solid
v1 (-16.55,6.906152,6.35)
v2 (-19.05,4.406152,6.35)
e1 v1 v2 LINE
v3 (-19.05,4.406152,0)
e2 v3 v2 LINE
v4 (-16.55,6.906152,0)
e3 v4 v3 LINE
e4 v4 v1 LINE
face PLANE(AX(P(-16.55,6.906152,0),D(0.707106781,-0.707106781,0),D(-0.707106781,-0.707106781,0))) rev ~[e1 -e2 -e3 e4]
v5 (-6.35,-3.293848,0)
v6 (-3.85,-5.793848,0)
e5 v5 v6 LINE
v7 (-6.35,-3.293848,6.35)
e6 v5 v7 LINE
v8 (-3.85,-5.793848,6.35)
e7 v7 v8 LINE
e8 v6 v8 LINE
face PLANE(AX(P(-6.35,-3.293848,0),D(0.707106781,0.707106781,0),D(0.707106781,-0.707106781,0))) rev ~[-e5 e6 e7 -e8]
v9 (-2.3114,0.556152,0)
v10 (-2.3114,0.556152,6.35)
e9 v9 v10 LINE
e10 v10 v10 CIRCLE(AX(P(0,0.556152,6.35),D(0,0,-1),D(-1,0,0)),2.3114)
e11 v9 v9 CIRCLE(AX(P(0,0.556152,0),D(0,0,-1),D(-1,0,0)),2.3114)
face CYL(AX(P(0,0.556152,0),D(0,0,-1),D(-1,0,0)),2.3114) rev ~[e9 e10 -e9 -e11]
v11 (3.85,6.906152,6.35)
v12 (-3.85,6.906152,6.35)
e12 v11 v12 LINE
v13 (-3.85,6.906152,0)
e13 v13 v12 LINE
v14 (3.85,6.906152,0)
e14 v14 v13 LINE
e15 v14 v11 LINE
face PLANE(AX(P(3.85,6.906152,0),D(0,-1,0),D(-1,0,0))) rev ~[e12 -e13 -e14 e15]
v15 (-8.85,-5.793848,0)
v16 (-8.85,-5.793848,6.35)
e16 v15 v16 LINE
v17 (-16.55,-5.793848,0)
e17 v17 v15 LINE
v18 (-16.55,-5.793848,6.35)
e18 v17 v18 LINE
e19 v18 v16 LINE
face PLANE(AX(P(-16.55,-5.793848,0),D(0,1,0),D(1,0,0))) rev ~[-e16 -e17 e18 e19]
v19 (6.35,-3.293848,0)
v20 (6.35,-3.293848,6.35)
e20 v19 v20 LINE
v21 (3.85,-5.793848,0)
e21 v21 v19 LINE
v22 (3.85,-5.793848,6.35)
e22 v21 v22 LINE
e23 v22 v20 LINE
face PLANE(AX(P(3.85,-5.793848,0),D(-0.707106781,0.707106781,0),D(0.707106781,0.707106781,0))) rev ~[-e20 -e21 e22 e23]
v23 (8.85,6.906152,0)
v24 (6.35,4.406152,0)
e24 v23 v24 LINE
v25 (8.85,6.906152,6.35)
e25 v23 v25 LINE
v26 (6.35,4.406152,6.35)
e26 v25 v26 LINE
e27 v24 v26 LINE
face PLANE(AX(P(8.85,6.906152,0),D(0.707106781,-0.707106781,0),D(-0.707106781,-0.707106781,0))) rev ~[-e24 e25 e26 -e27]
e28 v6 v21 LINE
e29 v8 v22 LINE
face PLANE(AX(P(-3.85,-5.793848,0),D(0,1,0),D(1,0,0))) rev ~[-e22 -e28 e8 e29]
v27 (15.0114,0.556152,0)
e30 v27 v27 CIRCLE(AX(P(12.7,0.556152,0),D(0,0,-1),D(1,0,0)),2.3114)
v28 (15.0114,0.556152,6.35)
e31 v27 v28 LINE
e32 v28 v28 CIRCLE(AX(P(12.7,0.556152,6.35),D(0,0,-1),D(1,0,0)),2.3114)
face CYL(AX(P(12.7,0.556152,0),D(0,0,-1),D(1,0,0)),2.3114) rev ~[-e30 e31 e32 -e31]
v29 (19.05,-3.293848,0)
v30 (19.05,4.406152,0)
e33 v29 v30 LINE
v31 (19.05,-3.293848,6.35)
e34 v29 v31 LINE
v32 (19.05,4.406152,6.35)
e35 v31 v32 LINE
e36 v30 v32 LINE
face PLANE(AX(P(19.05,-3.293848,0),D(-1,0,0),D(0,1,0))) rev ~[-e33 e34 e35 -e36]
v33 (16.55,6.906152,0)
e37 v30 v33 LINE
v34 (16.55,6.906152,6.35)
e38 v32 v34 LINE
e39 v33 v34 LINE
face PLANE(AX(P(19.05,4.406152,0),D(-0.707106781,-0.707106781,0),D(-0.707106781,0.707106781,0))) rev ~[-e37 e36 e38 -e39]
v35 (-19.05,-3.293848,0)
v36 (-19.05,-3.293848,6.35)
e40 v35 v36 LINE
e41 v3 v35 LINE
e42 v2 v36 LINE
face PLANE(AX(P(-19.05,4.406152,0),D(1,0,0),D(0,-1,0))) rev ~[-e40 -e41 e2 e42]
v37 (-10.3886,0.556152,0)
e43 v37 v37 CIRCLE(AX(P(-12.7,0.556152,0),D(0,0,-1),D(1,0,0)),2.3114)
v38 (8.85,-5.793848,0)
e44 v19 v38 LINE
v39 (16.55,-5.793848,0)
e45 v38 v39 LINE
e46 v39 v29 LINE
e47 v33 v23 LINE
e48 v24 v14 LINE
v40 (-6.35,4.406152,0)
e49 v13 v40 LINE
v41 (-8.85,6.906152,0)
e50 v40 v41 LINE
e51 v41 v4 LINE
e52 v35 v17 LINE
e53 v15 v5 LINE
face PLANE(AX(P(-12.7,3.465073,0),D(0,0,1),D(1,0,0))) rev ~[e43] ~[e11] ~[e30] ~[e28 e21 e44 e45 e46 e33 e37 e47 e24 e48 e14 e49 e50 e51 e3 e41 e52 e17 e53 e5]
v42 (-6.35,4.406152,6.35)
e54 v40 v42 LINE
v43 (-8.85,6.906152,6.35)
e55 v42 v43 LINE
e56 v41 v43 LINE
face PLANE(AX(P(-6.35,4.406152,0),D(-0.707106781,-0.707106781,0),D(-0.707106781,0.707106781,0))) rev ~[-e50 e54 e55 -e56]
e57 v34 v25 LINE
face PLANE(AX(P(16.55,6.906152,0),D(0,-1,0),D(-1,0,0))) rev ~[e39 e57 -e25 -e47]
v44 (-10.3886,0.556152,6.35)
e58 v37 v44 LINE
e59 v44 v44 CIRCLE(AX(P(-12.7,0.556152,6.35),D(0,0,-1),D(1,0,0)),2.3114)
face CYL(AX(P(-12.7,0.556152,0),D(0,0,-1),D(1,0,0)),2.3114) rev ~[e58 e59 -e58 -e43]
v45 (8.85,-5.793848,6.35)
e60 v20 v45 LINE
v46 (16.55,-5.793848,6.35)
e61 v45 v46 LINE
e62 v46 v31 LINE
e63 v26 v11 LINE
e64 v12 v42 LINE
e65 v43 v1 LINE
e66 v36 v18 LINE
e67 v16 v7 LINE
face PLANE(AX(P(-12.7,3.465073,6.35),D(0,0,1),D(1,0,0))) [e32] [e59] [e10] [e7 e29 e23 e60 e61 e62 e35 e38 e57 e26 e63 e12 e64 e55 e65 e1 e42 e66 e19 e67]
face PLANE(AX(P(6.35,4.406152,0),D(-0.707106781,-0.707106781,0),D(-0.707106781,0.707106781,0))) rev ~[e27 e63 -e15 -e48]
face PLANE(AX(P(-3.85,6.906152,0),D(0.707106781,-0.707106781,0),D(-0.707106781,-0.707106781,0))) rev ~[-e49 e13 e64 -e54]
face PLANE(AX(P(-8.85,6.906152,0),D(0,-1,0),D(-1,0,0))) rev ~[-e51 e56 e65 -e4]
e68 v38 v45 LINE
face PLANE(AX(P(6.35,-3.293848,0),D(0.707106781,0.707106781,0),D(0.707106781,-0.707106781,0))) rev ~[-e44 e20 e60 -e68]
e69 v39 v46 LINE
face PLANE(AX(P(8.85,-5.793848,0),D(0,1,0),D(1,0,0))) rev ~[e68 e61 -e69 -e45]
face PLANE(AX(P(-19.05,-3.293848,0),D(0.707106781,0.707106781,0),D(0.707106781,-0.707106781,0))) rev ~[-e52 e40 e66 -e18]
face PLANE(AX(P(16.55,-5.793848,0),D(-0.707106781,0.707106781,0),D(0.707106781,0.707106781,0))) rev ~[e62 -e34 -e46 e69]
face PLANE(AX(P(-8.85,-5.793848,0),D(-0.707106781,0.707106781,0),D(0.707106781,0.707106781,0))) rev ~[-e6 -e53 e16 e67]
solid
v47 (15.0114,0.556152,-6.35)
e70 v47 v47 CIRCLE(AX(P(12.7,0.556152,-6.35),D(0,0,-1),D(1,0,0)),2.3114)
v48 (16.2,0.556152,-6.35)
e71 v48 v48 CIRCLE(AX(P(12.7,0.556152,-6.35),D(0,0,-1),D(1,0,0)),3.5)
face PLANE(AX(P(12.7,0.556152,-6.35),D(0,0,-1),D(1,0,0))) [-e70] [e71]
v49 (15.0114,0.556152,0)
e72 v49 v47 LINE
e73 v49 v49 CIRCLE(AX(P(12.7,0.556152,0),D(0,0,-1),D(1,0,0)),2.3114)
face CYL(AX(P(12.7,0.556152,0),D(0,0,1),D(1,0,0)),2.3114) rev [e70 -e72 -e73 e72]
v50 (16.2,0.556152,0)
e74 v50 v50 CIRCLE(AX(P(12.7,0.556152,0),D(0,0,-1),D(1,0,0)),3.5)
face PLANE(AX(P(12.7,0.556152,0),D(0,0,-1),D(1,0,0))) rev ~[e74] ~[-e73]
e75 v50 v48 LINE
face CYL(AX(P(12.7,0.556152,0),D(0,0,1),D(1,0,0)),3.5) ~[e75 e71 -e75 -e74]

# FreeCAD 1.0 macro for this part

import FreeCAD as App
import Part
import Sketcher
from FreeCAD import Vector
Q = App.Units.Quantity

doc = App.newDocument("Part")
body = doc.addObject("PartDesign::Body", "Body")

sketch1 = body.newObject("Sketcher::SketchObject", "Sketch")
sketch1.AttachmentSupport = (doc.getObject("XY_Plane"), [""])
sketch1.MapMode = "FlatFace"
sketch1.addGeometry([
    Part.LineSegment(Vector(-6.35, 4.406152, 0), Vector(-8.85, 6.906152, 0)),
    Part.LineSegment(Vector(-8.85, 6.906152, 0), Vector(-16.55, 6.906152, 0)),
    Part.LineSegment(Vector(-16.55, 6.906152, 0), Vector(-19.05, 4.406152, 0)),
    Part.LineSegment(Vector(-19.05, 4.406152, 0), Vector(-19.05, -3.293848, 0)),
    Part.LineSegment(Vector(-19.05, -3.293848, 0), Vector(-16.55, -5.793848, 0)),
    Part.LineSegment(Vector(-16.55, -5.793848, 0), Vector(-8.85, -5.793848, 0)),
    Part.LineSegment(Vector(-8.85, -5.793848, 0), Vector(-6.35, -3.293848, 0)),
    Part.LineSegment(Vector(-6.35, -3.293848, 0), Vector(-3.85, -5.793848, 0)),
    Part.LineSegment(Vector(-3.85, -5.793848, 0), Vector(3.85, -5.793848, 0)),
    Part.LineSegment(Vector(3.85, -5.793848, 0), Vector(6.35, -3.293848, 0)),
    Part.LineSegment(Vector(6.35, -3.293848, 0), Vector(8.85, -5.793848, 0)),
    Part.LineSegment(Vector(8.85, -5.793848, 0), Vector(16.55, -5.793848, 0)),
    Part.LineSegment(Vector(16.55, -5.793848, 0), Vector(19.05, -3.293848, 0)),
    Part.LineSegment(Vector(19.05, -3.293848, 0), Vector(19.05, 4.406152, 0)),
    Part.LineSegment(Vector(19.05, 4.406152, 0), Vector(16.55, 6.906152, 0)),
    Part.LineSegment(Vector(16.55, 6.906152, 0), Vector(8.85, 6.906152, 0)),
    Part.LineSegment(Vector(8.85, 6.906152, 0), Vector(6.35, 4.406152, 0)),
    Part.LineSegment(Vector(6.35, 4.406152, 0), Vector(3.85, 6.906152, 0)),
    Part.LineSegment(Vector(3.85, 6.906152, 0), Vector(-3.85, 6.906152, 0)),
    Part.LineSegment(Vector(-3.85, 6.906152, 0), Vector(-6.35, 4.406152, 0)),
    Part.Circle(Vector(12.7, 0.556152, 0), Vector(0, 0, 1), 2.3114),
    Part.Circle(Vector(0, 0.556152, 0), Vector(0, 0, 1), 2.3114),
    Part.Circle(Vector(-12.7, 0.556152, 0), Vector(0, 0, 1), 2.3114),
], False)
sketch1.addConstraint([
    Sketcher.Constraint("Coincident", 0, 2, 1, 1),
    Sketcher.Constraint("Coincident", 1, 2, 2, 1),
    Sketcher.Constraint("Coincident", 2, 2, 3, 1),
    Sketcher.Constraint("Coincident", 3, 2, 4, 1),
    Sketcher.Constraint("Coincident", 4, 2, 5, 1),
    Sketcher.Constraint("Coincident", 5, 2, 6, 1),
    Sketcher.Constraint("Coincident", 6, 2, 7, 1),
    Sketcher.Constraint("Coincident", 7, 2, 8, 1),
    Sketcher.Constraint("Coincident", 8, 2, 9, 1),
    Sketcher.Constraint("Coincident", 9, 2, 10, 1),
    Sketcher.Constraint("Coincident", 10, 2, 11, 1),
    Sketcher.Constraint("Coincident", 11, 2, 12, 1),
    Sketcher.Constraint("Coincident", 12, 2, 13, 1),
    Sketcher.Constraint("Coincident", 13, 2, 14, 1),
    Sketcher.Constraint("Coincident", 14, 2, 15, 1),
    Sketcher.Constraint("Coincident", 15, 2, 16, 1),
    Sketcher.Constraint("Coincident", 16, 2, 17, 1),
    Sketcher.Constraint("Coincident", 17, 2, 18, 1),
    Sketcher.Constraint("Coincident", 18, 2, 19, 1),
    Sketcher.Constraint("Coincident", 19, 2, 0, 1),
    Sketcher.Constraint("Horizontal", 1),
    Sketcher.Constraint("Vertical", 3),
    Sketcher.Constraint("Horizontal", 5),
    Sketcher.Constraint("Horizontal", 8),
    Sketcher.Constraint("Horizontal", 11),
    Sketcher.Constraint("Vertical", 13),
    Sketcher.Constraint("Horizontal", 15),
    Sketcher.Constraint("Horizontal", 18),
    Sketcher.Constraint("Equal", 20, 21),
    Sketcher.Constraint("Equal", 21, 22),
    Sketcher.Constraint("Symmetric", 20, 3, 22, 3, -2),
    Sketcher.Constraint("Symmetric", 6, 2, 9, 2, -2),
    Sketcher.Constraint("Symmetric", 5, 2, 10, 2, -2),
    Sketcher.Constraint("Symmetric", 3, 2, 12, 2, -2),
    Sketcher.Constraint("Symmetric", 1, 2, 14, 2, -2),
    Sketcher.Constraint("Symmetric", 16, 2, 19, 2, -2),
    Sketcher.Constraint("PointOnObject", 21, 3, -2),
    Sketcher.Constraint("Perpendicular", 0, 2),
    Sketcher.Constraint("Perpendicular", 2, 4),
    Sketcher.Constraint("Perpendicular", 4, 6),
    Sketcher.Constraint("Perpendicular", 6, 7),
    Sketcher.Constraint("Perpendicular", 7, 9),
    Sketcher.Constraint("Perpendicular", 9, 10),
    Sketcher.Constraint("Perpendicular", 10, 12),
    Sketcher.Constraint("Perpendicular", 12, 14),
    Sketcher.Constraint("Perpendicular", 14, 16),
    Sketcher.Constraint("Perpendicular", 16, 17),
    Sketcher.Constraint("Perpendicular", 17, 19),
    Sketcher.Constraint("Horizontal", 20, 3, 21, 3),
    Sketcher.Constraint("Horizontal", 3, 2, 6, 2),
    Sketcher.Constraint("Horizontal", 5, 2, 7, 2),
    Sketcher.Constraint("Horizontal", 13, 2, 16, 2),
    Sketcher.Constraint("Horizontal", 15, 2, 17, 2),
    Sketcher.Constraint("Vertical", 1, 2, 4, 2),
    Sketcher.Constraint("Vertical", 0, 2, 5, 2),
    Sketcher.Constraint("Equal", 5, 8),
    Sketcher.Constraint("Equal", 18, 3),
    Sketcher.Constraint("DistanceX", 1, 2, 1, 1, Q("7.7 mm")),
    Sketcher.Constraint("DistanceX", 5, 2, 7, 2, Q("5 mm")),
    Sketcher.Constraint("Diameter", 20, Q("4.6228 mm")),
    Sketcher.Constraint("DistanceX", -1, 1, 20, 3, Q("12.7 mm")),
    Sketcher.Constraint("DistanceY", 22, 3, 0, 2, Q("6.35 mm")),
    Sketcher.Constraint("DistanceY", -1, 1, 20, 3, Q("0.556152 mm")),
])
pad1 = body.newObject("PartDesign::Pad", "Pad")
pad1.Profile = sketch1
pad1.Length = 6.35
body2 = doc.addObject("PartDesign::Body", "Body001")

sketch2 = body2.newObject("Sketcher::SketchObject", "Sketch001")
sketch2.AttachmentSupport = (doc.getObject("XY_Plane001"), [""])
sketch2.MapMode = "FlatFace"
sketch2.addGeometry([
    Part.Circle(Vector(12.7, 0.556152, 0), Vector(0, 0, 1), 3.5),
    Part.Circle(Vector(12.7, 0.556152, 0), Vector(0, 0, 1), 2.3114),
], False)
sketch2.addConstraint([
    Sketcher.Constraint("Coincident", 1, 3, 0, 3),
    Sketcher.Constraint("Diameter", 0, Q("7 mm")),
    Sketcher.Constraint("Diameter", 1, Q("4.6228 mm")),
    Sketcher.Constraint("DistanceX", -1, 1, 0, 3, Q("12.7 mm")),
    Sketcher.Constraint("DistanceY", -1, 1, 0, 3, Q("0.556152 mm")),
])
pad2 = body2.newObject("PartDesign::Pad", "Pad001")
pad2.Profile = sketch2
pad2.Length = 6.35
pad2.Reversed = True

doc.recompute()
